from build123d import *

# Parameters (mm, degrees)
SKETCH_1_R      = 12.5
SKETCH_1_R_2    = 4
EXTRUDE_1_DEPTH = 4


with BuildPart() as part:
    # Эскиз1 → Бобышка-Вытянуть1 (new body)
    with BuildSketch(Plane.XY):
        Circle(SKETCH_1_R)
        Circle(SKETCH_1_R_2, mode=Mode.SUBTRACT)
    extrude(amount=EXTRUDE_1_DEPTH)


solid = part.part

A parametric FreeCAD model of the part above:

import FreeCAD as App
import Part
import Sketcher
Q = App.Units.Quantity

doc = App.newDocument("Part")
params = doc.addObject("Spreadsheet::Sheet", "Params")
for row, (alias, value) in enumerate([
    ("sketch1_diameter", "25 mm"),
    ("sketch1_diameter2", "8 mm"),
    ("pad1_length", "4 mm"),
], start=1):
    params.set(f"A{row}", alias)
    params.set(f"B{row}", "=" + value)
    params.setAlias(f"B{row}", alias)

body = doc.addObject("PartDesign::Body", "Body")

sketch1 = doc.addObject("Sketcher::SketchObject", "Sketch")
body.addObject(sketch1)
sketch1.AttachmentSupport = (doc.XY_Plane, [""])
sketch1.MapMode = "FlatFace"
sketch1.addGeometry(Part.Circle(App.Vector(0, 0, 0), App.Vector(0, 0, 1), 12.5), False)
sketch1.addGeometry(Part.Circle(App.Vector(0, 0, 0), App.Vector(0, 0, 1), 4), False)
sketch1.addConstraint(Sketcher.Constraint("Coincident", 0, 3, -1, 1))
sketch1.addConstraint(Sketcher.Constraint("Coincident", 1, 3, -1, 1))
sketch1.addConstraint(Sketcher.Constraint("Diameter", 0, Q("25 mm")))
sketch1.addConstraint(Sketcher.Constraint("Diameter", 1, Q("8 mm")))
sketch1.setExpression("Constraints[2]", "Params.sketch1_diameter")
sketch1.setExpression("Constraints[3]", "Params.sketch1_diameter2")
pad1 = doc.addObject("PartDesign::Pad", "Pad")
body.addObject(pad1)
pad1.Profile = sketch1
pad1.setExpression("Length", "Params.pad1_length")

doc.recompute()
